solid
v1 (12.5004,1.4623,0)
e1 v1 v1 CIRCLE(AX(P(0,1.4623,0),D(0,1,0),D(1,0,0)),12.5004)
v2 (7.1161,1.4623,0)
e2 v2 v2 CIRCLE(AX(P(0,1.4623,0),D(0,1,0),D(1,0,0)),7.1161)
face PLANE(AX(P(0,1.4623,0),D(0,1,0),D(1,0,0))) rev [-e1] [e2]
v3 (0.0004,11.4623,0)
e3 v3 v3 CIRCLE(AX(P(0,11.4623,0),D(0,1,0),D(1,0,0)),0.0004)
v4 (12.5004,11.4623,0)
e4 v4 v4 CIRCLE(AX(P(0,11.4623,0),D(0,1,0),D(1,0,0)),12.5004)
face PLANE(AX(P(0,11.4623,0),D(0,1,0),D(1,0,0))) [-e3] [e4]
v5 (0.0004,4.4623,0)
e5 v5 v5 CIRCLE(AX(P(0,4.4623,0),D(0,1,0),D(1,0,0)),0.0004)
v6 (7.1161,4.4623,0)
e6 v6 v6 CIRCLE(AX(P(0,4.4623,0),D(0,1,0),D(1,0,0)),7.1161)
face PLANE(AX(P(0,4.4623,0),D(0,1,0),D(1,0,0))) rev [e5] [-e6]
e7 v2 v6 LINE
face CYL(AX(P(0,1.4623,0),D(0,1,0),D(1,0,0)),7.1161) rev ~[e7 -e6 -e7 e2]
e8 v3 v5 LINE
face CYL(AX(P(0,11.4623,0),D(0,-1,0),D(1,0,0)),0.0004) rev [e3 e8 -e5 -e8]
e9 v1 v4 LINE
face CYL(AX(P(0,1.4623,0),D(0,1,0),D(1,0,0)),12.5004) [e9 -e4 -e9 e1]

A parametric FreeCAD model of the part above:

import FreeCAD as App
import Part
import Sketcher

V = App.Vector

doc = App.newDocument("Part")
body = doc.addObject("PartDesign::Body", "Body")

# Sketch on XY plane
sketch1 = body.newObject("Sketcher::SketchObject", "Sketch")
sketch1.AttachmentSupport = (doc.getObject("XY_Plane"), [""])
sketch1.MapMode = "FlatFace"
sketch1.addGeometry(Part.LineSegment(V(0.0004, 11.4623, 0), V(0.0004, 4.4623, 0)), False)
sketch1.addGeometry(Part.LineSegment(V(0.0004, 4.4623, 0), V(7.1161, 4.4623, 0)), False)
sketch1.addGeometry(Part.LineSegment(V(7.1161, 4.4623, 0), V(7.1161, 1.4623, 0)), False)
sketch1.addGeometry(Part.LineSegment(V(7.1161, 1.4623, 0), V(12.5004, 1.4623, 0)), False)
sketch1.addGeometry(Part.LineSegment(V(12.5004, 1.4623, 0), V(12.5004, 11.4623, 0)), False)
sketch1.addGeometry(Part.LineSegment(V(12.5004, 11.4623, 0), V(0.0004, 11.4623, 0)), False)
sketch1.addConstraint(Sketcher.Constraint("Coincident", 0, 2, 1, 1))
sketch1.addConstraint(Sketcher.Constraint("Coincident", 1, 2, 2, 1))
sketch1.addConstraint(Sketcher.Constraint("Coincident", 2, 2, 3, 1))
sketch1.addConstraint(Sketcher.Constraint("Coincident", 3, 2, 4, 1))
sketch1.addConstraint(Sketcher.Constraint("Coincident", 4, 2, 5, 1))
sketch1.addConstraint(Sketcher.Constraint("Coincident", 5, 2, 0, 1))
sketch1.addConstraint(Sketcher.Constraint("Vertical", 0))
sketch1.addConstraint(Sketcher.Constraint("Horizontal", 1))
sketch1.addConstraint(Sketcher.Constraint("Vertical", 2))
sketch1.addConstraint(Sketcher.Constraint("Horizontal", 3))
sketch1.addConstraint(Sketcher.Constraint("Vertical", 4))
sketch1.addConstraint(Sketcher.Constraint("Horizontal", 5))
sketch1.addConstraint(Sketcher.Constraint("DistanceY", 2, 2, 2, 1, 3.0))
sketch1.addConstraint(Sketcher.Constraint("DistanceY", 4, 1, 4, 2, 10.0))
sketch1.addConstraint(Sketcher.Constraint("DistanceX", 5, 2, 5, 1, 12.5))
sketch1.addConstraint(Sketcher.Constraint("DistanceX", -1, 1, 3, 2, 12.5004))
sketch1.addConstraint(Sketcher.Constraint("DistanceX", 1, 1, 1, 2, 7.1157))
sketch1.addConstraint(Sketcher.Constraint("DistanceY", -1, 1, 0, 2, 4.4623))
revolution = body.newObject("PartDesign::Revolution", "Revolution")
revolution.Profile = sketch1
revolution.ReferenceAxis = (sketch1, ["V_Axis"])
revolution.Angle = 360

doc.recompute()
